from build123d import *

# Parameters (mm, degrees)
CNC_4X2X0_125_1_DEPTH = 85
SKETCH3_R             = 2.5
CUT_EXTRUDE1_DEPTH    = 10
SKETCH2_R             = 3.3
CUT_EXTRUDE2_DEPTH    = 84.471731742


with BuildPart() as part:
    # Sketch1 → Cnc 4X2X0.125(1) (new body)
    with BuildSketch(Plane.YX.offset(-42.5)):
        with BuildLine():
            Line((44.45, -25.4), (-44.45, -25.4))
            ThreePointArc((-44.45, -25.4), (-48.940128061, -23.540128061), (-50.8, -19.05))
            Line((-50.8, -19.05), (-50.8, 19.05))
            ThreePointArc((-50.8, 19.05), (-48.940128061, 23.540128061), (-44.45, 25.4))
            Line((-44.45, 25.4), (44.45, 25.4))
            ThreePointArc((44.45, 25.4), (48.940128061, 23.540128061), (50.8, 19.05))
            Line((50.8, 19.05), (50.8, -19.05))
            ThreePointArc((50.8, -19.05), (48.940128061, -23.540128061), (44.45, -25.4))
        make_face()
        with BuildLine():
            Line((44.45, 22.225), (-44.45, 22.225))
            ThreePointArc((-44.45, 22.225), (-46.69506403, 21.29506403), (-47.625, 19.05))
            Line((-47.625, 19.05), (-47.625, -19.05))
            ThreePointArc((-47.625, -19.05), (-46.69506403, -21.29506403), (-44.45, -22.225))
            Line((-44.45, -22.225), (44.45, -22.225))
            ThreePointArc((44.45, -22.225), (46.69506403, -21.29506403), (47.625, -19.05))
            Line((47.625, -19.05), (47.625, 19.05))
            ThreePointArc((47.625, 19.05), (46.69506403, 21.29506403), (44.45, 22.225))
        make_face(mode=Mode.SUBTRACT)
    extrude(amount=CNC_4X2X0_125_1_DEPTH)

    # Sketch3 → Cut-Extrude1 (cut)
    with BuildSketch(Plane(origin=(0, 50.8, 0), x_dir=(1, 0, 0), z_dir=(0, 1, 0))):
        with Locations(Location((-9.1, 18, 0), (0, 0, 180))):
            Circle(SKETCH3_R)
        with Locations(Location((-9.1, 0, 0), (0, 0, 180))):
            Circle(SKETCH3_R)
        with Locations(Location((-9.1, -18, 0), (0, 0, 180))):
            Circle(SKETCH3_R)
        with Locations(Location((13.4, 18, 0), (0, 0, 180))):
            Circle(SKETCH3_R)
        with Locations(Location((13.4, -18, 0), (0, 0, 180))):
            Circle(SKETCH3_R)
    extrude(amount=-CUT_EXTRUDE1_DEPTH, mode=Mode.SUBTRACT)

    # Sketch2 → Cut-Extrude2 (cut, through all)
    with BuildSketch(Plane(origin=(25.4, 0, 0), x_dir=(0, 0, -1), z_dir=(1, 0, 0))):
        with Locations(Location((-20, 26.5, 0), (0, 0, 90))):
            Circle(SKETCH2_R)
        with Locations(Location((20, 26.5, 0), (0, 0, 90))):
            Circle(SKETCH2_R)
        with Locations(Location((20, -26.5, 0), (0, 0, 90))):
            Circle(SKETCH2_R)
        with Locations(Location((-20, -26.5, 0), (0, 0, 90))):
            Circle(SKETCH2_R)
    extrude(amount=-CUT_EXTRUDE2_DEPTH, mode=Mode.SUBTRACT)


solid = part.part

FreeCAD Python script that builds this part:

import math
import FreeCAD as App
import Part
import Sketcher
Q = App.Units.Quantity

doc = App.newDocument("Part")
body = doc.addObject("PartDesign::Body", "Body")

sketch1 = body.newObject("Sketcher::SketchObject", "Sketch")
sketch1.AttachmentSupport = (doc.getObject("XY_Plane"), [""])
sketch1.MapMode = "FlatFace"
sketch1.AttachmentOffset = App.Placement(App.Vector(0, 0, 42.5), App.Rotation())
sketch1.addGeometry(Part.LineSegment(App.Vector(-25.4, -44.5, 0), App.Vector(-25.4, 44.5, 0)), False)
sketch1.addGeometry(Part.ArcOfCircle(Part.Circle(App.Vector(-19.1, 44.5, 0), App.Vector(0, 0, 1), 6.3), math.radians(90), math.radians(180)), False)
sketch1.addGeometry(Part.LineSegment(App.Vector(-19.1, 50.8, 0), App.Vector(19.1, 50.8, 0)), False)
sketch1.addGeometry(Part.ArcOfCircle(Part.Circle(App.Vector(19.1, 44.5, 0), App.Vector(0, 0, 1), 6.3), math.radians(0), math.radians(90)), False)
sketch1.addGeometry(Part.LineSegment(App.Vector(25.4, 44.5, 0), App.Vector(25.4, -44.5, 0)), False)
sketch1.addGeometry(Part.ArcOfCircle(Part.Circle(App.Vector(19.1, -44.5, 0), App.Vector(0, 0, 1), 6.3), math.radians(-90), math.radians(0)), False)
sketch1.addGeometry(Part.LineSegment(App.Vector(19.1, -50.8, 0), App.Vector(-19.1, -50.8, 0)), False)
sketch1.addGeometry(Part.ArcOfCircle(Part.Circle(App.Vector(-19.1, -44.5, 0), App.Vector(0, 0, 1), 6.3), math.radians(180), math.radians(270)), False)
sketch1.addGeometry(Part.ArcOfCircle(Part.Circle(App.Vector(19, 44.4, 0), App.Vector(0, 0, 1), 3.2), math.radians(0), math.radians(90)), False)
sketch1.addGeometry(Part.LineSegment(App.Vector(19.1, 47.6, 0), App.Vector(-19.1, 47.6, 0)), False)
sketch1.addGeometry(Part.ArcOfCircle(Part.Circle(App.Vector(-19, 44.4, 0), App.Vector(0, 0, 1), 3.2), math.radians(90), math.radians(180)), False)
sketch1.addGeometry(Part.LineSegment(App.Vector(-22.2, 44.5, 0), App.Vector(-22.2, -44.5, 0)), False)
sketch1.addGeometry(Part.ArcOfCircle(Part.Circle(App.Vector(-19, -44.4, 0), App.Vector(0, 0, 1), 3.2), math.radians(-180), math.radians(-90)), False)
sketch1.addGeometry(Part.LineSegment(App.Vector(-19.1, -47.6, 0), App.Vector(19.1, -47.6, 0)), False)
sketch1.addGeometry(Part.ArcOfCircle(Part.Circle(App.Vector(19, -44.4, 0), App.Vector(0, 0, 1), 3.2), math.radians(-90), math.radians(0)), False)
sketch1.addGeometry(Part.LineSegment(App.Vector(22.2, -44.5, 0), App.Vector(22.2, 44.5, 0)), False)
sketch1.addConstraint(Sketcher.Constraint("Tangent", 0, 2, 1, 2))
sketch1.addConstraint(Sketcher.Constraint("Tangent", 1, 1, 2, 1))
sketch1.addConstraint(Sketcher.Constraint("Tangent", 2, 2, 3, 2))
sketch1.addConstraint(Sketcher.Constraint("Tangent", 3, 1, 4, 1))
sketch1.addConstraint(Sketcher.Constraint("Tangent", 4, 2, 5, 2))
sketch1.addConstraint(Sketcher.Constraint("Tangent", 5, 1, 6, 1))
sketch1.addConstraint(Sketcher.Constraint("Tangent", 6, 2, 7, 2))
sketch1.addConstraint(Sketcher.Constraint("Tangent", 7, 1, 0, 1))
sketch1.addConstraint(Sketcher.Constraint("Tangent", 8, 2, 9, 1))
sketch1.addConstraint(Sketcher.Constraint("Tangent", 9, 2, 10, 1))
sketch1.addConstraint(Sketcher.Constraint("Tangent", 10, 2, 11, 1))
sketch1.addConstraint(Sketcher.Constraint("Tangent", 11, 2, 12, 1))
sketch1.addConstraint(Sketcher.Constraint("Tangent", 12, 2, 13, 1))
sketch1.addConstraint(Sketcher.Constraint("Tangent", 13, 2, 14, 1))
sketch1.addConstraint(Sketcher.Constraint("Tangent", 14, 2, 15, 1))
sketch1.addConstraint(Sketcher.Constraint("Tangent", 15, 2, 8, 1))
sketch1.addConstraint(Sketcher.Constraint("Vertical", 0))
sketch1.addConstraint(Sketcher.Constraint("Horizontal", 2))
sketch1.addConstraint(Sketcher.Constraint("Vertical", 4))
sketch1.addConstraint(Sketcher.Constraint("Horizontal", 6))
sketch1.addConstraint(Sketcher.Constraint("Horizontal", 9))
sketch1.addConstraint(Sketcher.Constraint("Vertical", 11))
sketch1.addConstraint(Sketcher.Constraint("Horizontal", 13))
sketch1.addConstraint(Sketcher.Constraint("Vertical", 15))
sketch1.addConstraint(Sketcher.Constraint("Coincident", 8, 3, 3, 3))
sketch1.addConstraint(Sketcher.Constraint("Coincident", 10, 3, 1, 3))
sketch1.addConstraint(Sketcher.Constraint("Coincident", 12, 3, 7, 3))
sketch1.addConstraint(Sketcher.Constraint("Equal", 1, 3))
sketch1.addConstraint(Sketcher.Constraint("Equal", 3, 5))
sketch1.addConstraint(Sketcher.Constraint("Equal", 5, 7))
sketch1.addConstraint(Sketcher.Constraint("Equal", 12, 14))
sketch1.addConstraint(Sketcher.Constraint("Symmetric", 1, 3, 5, 3, -1, 1))
sketch1.addConstraint(Sketcher.Constraint("Radius", 1, Q("6.35 mm")))
sketch1.addConstraint(Sketcher.Constraint("DistanceX", 2, 1, 2, 2, Q("38.1 mm")))
sketch1.addConstraint(Sketcher.Constraint("DistanceY", 0, 1, 0, 2, Q("88.9 mm")))
sketch1.addConstraint(Sketcher.Constraint("Radius", 8, Q("3.175 mm")))
pad1 = body.newObject("PartDesign::Pad", "Pad")
pad1.Profile = sketch1
pad1.Length = 85
pad1.Reversed = True

sketch2 = body.newObject("Sketcher::SketchObject", "Sketch001")
sketch2.AttachmentSupport = (doc.getObject("XZ_Plane"), [""])
sketch2.MapMode = "FlatFace"
sketch2.AttachmentOffset = App.Placement(App.Vector(0, 0, -50.8), App.Rotation())
sketch2.addGeometry(Part.Circle(App.Vector(-9.1, -18, 0), App.Vector(0, 0, 1), 2.5), False)
sketch2.addGeometry(Part.Circle(App.Vector(-9.1, 0, 0), App.Vector(0, 0, 1), 2.5), False)
sketch2.addGeometry(Part.Circle(App.Vector(-9.1, 18, 0), App.Vector(0, 0, 1), 2.5), False)
sketch2.addGeometry(Part.Circle(App.Vector(13.4, -18, 0), App.Vector(0, 0, 1), 2.5), False)
sketch2.addGeometry(Part.Circle(App.Vector(13.4, 18, 0), App.Vector(0, 0, 1), 2.5), False)
sketch2.addConstraint(Sketcher.Constraint("Equal", 0, 1))
sketch2.addConstraint(Sketcher.Constraint("Equal", 1, 2))
sketch2.addConstraint(Sketcher.Constraint("Equal", 2, 3))
sketch2.addConstraint(Sketcher.Constraint("Equal", 3, 4))
sketch2.addConstraint(Sketcher.Constraint("Symmetric", 0, 3, 2, 3, -1))
sketch2.addConstraint(Sketcher.Constraint("Symmetric", 3, 3, 4, 3, -1))
sketch2.addConstraint(Sketcher.Constraint("PointOnObject", 1, 3, -1))
sketch2.addConstraint(Sketcher.Constraint("Horizontal", 0, 3, 3, 3))
sketch2.addConstraint(Sketcher.Constraint("Vertical", 0, 3, 1, 3))
sketch2.addConstraint(Sketcher.Constraint("Diameter", 0, Q("5 mm")))
sketch2.addConstraint(Sketcher.Constraint("DistanceY", 0, 3, -1, 1, Q("18 mm")))
sketch2.addConstraint(Sketcher.Constraint("DistanceX", 0, 3, -1, 1, Q("9.1 mm")))
sketch2.addConstraint(Sketcher.Constraint("DistanceX", -1, 1, 3, 3, Q("13.4 mm")))
pocket1 = body.newObject("PartDesign::Pocket", "Pocket")
pocket1.Profile = sketch2
pocket1.Length = 10
pocket1.Reversed = True

sketch3 = body.newObject("Sketcher::SketchObject", "Sketch002")
sketch3.AttachmentSupport = (doc.getObject("YZ_Plane"), [""])
sketch3.MapMode = "FlatFace"
sketch3.AttachmentOffset = App.Placement(App.Vector(0, 0, 25.4), App.Rotation())
sketch3.addGeometry(Part.Circle(App.Vector(26.5, 20, 0), App.Vector(0, 0, 1), 3.3), False)
sketch3.addGeometry(Part.Circle(App.Vector(26.5, -20, 0), App.Vector(0, 0, 1), 3.3), False)
sketch3.addGeometry(Part.Circle(App.Vector(-26.5, -20, 0), App.Vector(0, 0, 1), 3.3), False)
sketch3.addGeometry(Part.Circle(App.Vector(-26.5, 20, 0), App.Vector(0, 0, 1), 3.3), False)
sketch3.addConstraint(Sketcher.Constraint("Equal", 0, 1))
sketch3.addConstraint(Sketcher.Constraint("Equal", 1, 2))
sketch3.addConstraint(Sketcher.Constraint("Equal", 2, 3))
sketch3.addConstraint(Sketcher.Constraint("Symmetric", 0, 3, 2, 3, -1, 1))
sketch3.addConstraint(Sketcher.Constraint("Symmetric", 1, 3, 3, 3, -1, 1))
sketch3.addConstraint(Sketcher.Constraint("Symmetric", 1, 3, 2, 3, -2))
sketch3.addConstraint(Sketcher.Constraint("Diameter", 0, Q("6.6 mm")))
sketch3.addConstraint(Sketcher.Constraint("DistanceY", -1, 1, 0, 3, Q("20 mm")))
sketch3.addConstraint(Sketcher.Constraint("DistanceX", 2, 3, 1, 3, Q("53 mm")))
pocket2 = body.newObject("PartDesign::Pocket", "Pocket001")
pocket2.Profile = sketch3
pocket2.Type = "ThroughAll"

doc.recompute()
